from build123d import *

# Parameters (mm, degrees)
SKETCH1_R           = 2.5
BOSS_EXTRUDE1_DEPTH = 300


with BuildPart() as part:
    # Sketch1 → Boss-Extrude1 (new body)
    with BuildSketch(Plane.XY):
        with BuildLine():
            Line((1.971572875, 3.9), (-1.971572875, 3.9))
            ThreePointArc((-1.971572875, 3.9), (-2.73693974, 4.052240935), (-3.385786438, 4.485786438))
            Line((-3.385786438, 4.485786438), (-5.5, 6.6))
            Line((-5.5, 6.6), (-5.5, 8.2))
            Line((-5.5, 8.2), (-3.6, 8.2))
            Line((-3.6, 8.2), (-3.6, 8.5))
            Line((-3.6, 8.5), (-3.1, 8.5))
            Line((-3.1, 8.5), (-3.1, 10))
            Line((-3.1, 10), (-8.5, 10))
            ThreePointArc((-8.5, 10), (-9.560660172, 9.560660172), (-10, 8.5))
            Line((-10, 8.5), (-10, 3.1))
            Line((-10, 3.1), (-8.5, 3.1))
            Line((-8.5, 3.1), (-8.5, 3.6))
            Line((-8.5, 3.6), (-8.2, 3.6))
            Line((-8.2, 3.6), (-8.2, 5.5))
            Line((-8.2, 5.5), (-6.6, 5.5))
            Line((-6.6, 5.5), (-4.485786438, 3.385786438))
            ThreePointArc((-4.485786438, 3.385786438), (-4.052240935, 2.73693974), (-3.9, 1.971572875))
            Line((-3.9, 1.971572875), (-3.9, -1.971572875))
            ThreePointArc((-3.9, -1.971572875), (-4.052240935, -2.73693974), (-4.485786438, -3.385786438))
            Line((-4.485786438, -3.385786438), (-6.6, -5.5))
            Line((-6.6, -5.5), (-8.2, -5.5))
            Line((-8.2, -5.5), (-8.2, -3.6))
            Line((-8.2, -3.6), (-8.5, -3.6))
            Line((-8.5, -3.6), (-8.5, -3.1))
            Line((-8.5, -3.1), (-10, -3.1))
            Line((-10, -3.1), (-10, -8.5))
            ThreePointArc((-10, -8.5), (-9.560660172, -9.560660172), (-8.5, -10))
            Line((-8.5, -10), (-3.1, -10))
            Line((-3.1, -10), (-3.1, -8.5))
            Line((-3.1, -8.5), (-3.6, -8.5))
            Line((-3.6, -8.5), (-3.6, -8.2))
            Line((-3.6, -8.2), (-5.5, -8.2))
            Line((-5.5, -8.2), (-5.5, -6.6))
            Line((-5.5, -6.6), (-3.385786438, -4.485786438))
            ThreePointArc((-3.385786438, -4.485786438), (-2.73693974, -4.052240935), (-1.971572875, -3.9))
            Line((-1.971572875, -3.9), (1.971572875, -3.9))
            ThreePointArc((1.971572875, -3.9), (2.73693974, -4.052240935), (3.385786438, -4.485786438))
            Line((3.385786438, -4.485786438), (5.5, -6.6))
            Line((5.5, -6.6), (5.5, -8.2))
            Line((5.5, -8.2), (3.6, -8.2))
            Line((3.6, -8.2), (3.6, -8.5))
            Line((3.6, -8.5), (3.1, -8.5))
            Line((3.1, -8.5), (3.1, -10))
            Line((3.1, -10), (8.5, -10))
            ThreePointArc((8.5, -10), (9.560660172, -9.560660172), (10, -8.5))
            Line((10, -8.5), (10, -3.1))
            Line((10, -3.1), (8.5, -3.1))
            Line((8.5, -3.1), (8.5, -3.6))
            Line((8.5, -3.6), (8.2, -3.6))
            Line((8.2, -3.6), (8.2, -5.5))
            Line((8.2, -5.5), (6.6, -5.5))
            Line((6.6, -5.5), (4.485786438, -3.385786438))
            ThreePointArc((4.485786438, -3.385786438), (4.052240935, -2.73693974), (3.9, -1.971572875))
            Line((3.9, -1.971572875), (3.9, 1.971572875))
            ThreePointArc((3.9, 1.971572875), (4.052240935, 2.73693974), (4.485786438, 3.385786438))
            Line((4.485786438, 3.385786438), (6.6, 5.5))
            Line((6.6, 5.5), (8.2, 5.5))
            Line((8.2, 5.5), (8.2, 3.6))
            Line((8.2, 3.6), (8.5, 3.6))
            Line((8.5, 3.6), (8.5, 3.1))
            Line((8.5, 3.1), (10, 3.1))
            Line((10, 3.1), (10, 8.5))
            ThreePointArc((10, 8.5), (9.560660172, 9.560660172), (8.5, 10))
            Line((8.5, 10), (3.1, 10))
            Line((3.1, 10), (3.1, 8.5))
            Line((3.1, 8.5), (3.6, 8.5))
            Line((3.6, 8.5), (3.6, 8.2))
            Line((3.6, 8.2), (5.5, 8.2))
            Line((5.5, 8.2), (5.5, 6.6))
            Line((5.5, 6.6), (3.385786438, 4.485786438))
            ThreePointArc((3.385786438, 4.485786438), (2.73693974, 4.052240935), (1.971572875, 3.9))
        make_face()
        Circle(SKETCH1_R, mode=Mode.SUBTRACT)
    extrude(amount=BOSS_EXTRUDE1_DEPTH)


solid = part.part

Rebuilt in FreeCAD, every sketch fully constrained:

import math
import FreeCAD as App
import Part
import Sketcher
from FreeCAD import Vector
Q = App.Units.Quantity

doc = App.newDocument("Part")
body = doc.addObject("PartDesign::Body", "Body")

sketch1 = doc.addObject("Sketcher::SketchObject", "Sketch")
body.addObject(sketch1)
sketch1.AttachmentSupport = (doc.XY_Plane, [""])
sketch1.MapMode = "FlatFace"
sketch1.addGeometry(Part.LineSegment(Vector(1.97, 3.9, 0), Vector(-1.97, 3.9, 0)), False)
sketch1.addGeometry(Part.ArcOfCircle(Part.Circle(Vector(-1.97, 5.9, 0), Vector(0, 0, 1), 2), math.radians(-135), math.radians(-90)), False)
sketch1.addGeometry(Part.LineSegment(Vector(-3.39, 4.49, 0), Vector(-5.5, 6.6, 0)), False)
sketch1.addGeometry(Part.LineSegment(Vector(-5.5, 6.6, 0), Vector(-5.5, 8.2, 0)), False)
sketch1.addGeometry(Part.LineSegment(Vector(-5.5, 8.2, 0), Vector(-3.6, 8.2, 0)), False)
sketch1.addGeometry(Part.LineSegment(Vector(-3.6, 8.2, 0), Vector(-3.6, 8.5, 0)), False)
sketch1.addGeometry(Part.LineSegment(Vector(-3.6, 8.5, 0), Vector(-3.1, 8.5, 0)), False)
sketch1.addGeometry(Part.LineSegment(Vector(-3.1, 8.5, 0), Vector(-3.1, 10, 0)), False)
sketch1.addGeometry(Part.LineSegment(Vector(-3.1, 10, 0), Vector(-8.5, 10, 0)), False)
sketch1.addGeometry(Part.ArcOfCircle(Part.Circle(Vector(-8.5, 8.5, 0), Vector(0, 0, 1), 1.5), math.radians(90), math.radians(180)), False)
sketch1.addGeometry(Part.LineSegment(Vector(-10, 8.5, 0), Vector(-10, 3.1, 0)), False)
sketch1.addGeometry(Part.LineSegment(Vector(-10, 3.1, 0), Vector(-8.5, 3.1, 0)), False)
sketch1.addGeometry(Part.LineSegment(Vector(-8.5, 3.1, 0), Vector(-8.5, 3.6, 0)), False)
sketch1.addGeometry(Part.LineSegment(Vector(-8.5, 3.6, 0), Vector(-8.2, 3.6, 0)), False)
sketch1.addGeometry(Part.LineSegment(Vector(-8.2, 3.6, 0), Vector(-8.2, 5.5, 0)), False)
sketch1.addGeometry(Part.LineSegment(Vector(-8.2, 5.5, 0), Vector(-6.6, 5.5, 0)), False)
sketch1.addGeometry(Part.LineSegment(Vector(-6.6, 5.5, 0), Vector(-4.49, 3.39, 0)), False)
sketch1.addGeometry(Part.ArcOfCircle(Part.Circle(Vector(-5.9, 1.97, 0), Vector(0, 0, 1), 2), math.radians(0), math.radians(45)), False)
sketch1.addGeometry(Part.LineSegment(Vector(-3.9, 1.97, 0), Vector(-3.9, -1.97, 0)), False)
sketch1.addGeometry(Part.ArcOfCircle(Part.Circle(Vector(-5.9, -1.97, 0), Vector(0, 0, 1), 2), math.radians(-45), math.radians(0)), False)
sketch1.addGeometry(Part.LineSegment(Vector(-4.49, -3.39, 0), Vector(-6.6, -5.5, 0)), False)
sketch1.addGeometry(Part.LineSegment(Vector(-6.6, -5.5, 0), Vector(-8.2, -5.5, 0)), False)
sketch1.addGeometry(Part.LineSegment(Vector(-8.2, -5.5, 0), Vector(-8.2, -3.6, 0)), False)
sketch1.addGeometry(Part.LineSegment(Vector(-8.2, -3.6, 0), Vector(-8.5, -3.6, 0)), False)
sketch1.addGeometry(Part.LineSegment(Vector(-8.5, -3.6, 0), Vector(-8.5, -3.1, 0)), False)
sketch1.addGeometry(Part.LineSegment(Vector(-8.5, -3.1, 0), Vector(-10, -3.1, 0)), False)
sketch1.addGeometry(Part.LineSegment(Vector(-10, -3.1, 0), Vector(-10, -8.5, 0)), False)
sketch1.addGeometry(Part.ArcOfCircle(Part.Circle(Vector(-8.5, -8.5, 0), Vector(0, 0, 1), 1.5), math.radians(180), math.radians(270)), False)
sketch1.addGeometry(Part.LineSegment(Vector(-8.5, -10, 0), Vector(-3.1, -10, 0)), False)
sketch1.addGeometry(Part.LineSegment(Vector(-3.1, -10, 0), Vector(-3.1, -8.5, 0)), False)
sketch1.addGeometry(Part.LineSegment(Vector(-3.1, -8.5, 0), Vector(-3.6, -8.5, 0)), False)
sketch1.addGeometry(Part.LineSegment(Vector(-3.6, -8.5, 0), Vector(-3.6, -8.2, 0)), False)
sketch1.addGeometry(Part.LineSegment(Vector(-3.6, -8.2, 0), Vector(-5.5, -8.2, 0)), False)
sketch1.addGeometry(Part.LineSegment(Vector(-5.5, -8.2, 0), Vector(-5.5, -6.6, 0)), False)
sketch1.addGeometry(Part.LineSegment(Vector(-5.5, -6.6, 0), Vector(-3.39, -4.49, 0)), False)
sketch1.addGeometry(Part.ArcOfCircle(Part.Circle(Vector(-1.97, -5.9, 0), Vector(0, 0, 1), 2), math.radians(90), math.radians(135)), False)
sketch1.addGeometry(Part.LineSegment(Vector(-1.97, -3.9, 0), Vector(1.97, -3.9, 0)), False)
sketch1.addGeometry(Part.ArcOfCircle(Part.Circle(Vector(1.97, -5.9, 0), Vector(0, 0, 1), 2), math.radians(45), math.radians(90)), False)
sketch1.addGeometry(Part.LineSegment(Vector(3.39, -4.49, 0), Vector(5.5, -6.6, 0)), False)
sketch1.addGeometry(Part.LineSegment(Vector(5.5, -6.6, 0), Vector(5.5, -8.2, 0)), False)
sketch1.addGeometry(Part.LineSegment(Vector(5.5, -8.2, 0), Vector(3.6, -8.2, 0)), False)
sketch1.addGeometry(Part.LineSegment(Vector(3.6, -8.2, 0), Vector(3.6, -8.5, 0)), False)
sketch1.addGeometry(Part.LineSegment(Vector(3.6, -8.5, 0), Vector(3.1, -8.5, 0)), False)
sketch1.addGeometry(Part.LineSegment(Vector(3.1, -8.5, 0), Vector(3.1, -10, 0)), False)
sketch1.addGeometry(Part.LineSegment(Vector(3.1, -10, 0), Vector(8.5, -10, 0)), False)
sketch1.addGeometry(Part.ArcOfCircle(Part.Circle(Vector(8.5, -8.5, 0), Vector(0, 0, 1), 1.5), math.radians(-90), math.radians(0)), False)
sketch1.addGeometry(Part.LineSegment(Vector(10, -8.5, 0), Vector(10, -3.1, 0)), False)
sketch1.addGeometry(Part.LineSegment(Vector(10, -3.1, 0), Vector(8.5, -3.1, 0)), False)
sketch1.addGeometry(Part.LineSegment(Vector(8.5, -3.1, 0), Vector(8.5, -3.6, 0)), False)
sketch1.addGeometry(Part.LineSegment(Vector(8.5, -3.6, 0), Vector(8.2, -3.6, 0)), False)
sketch1.addGeometry(Part.LineSegment(Vector(8.2, -3.6, 0), Vector(8.2, -5.5, 0)), False)
sketch1.addGeometry(Part.LineSegment(Vector(8.2, -5.5, 0), Vector(6.6, -5.5, 0)), False)
sketch1.addGeometry(Part.LineSegment(Vector(6.6, -5.5, 0), Vector(4.49, -3.39, 0)), False)
sketch1.addGeometry(Part.ArcOfCircle(Part.Circle(Vector(5.9, -1.97, 0), Vector(0, 0, 1), 2), math.radians(180), math.radians(225)), False)
sketch1.addGeometry(Part.LineSegment(Vector(3.9, -1.97, 0), Vector(3.9, 1.97, 0)), False)
sketch1.addGeometry(Part.ArcOfCircle(Part.Circle(Vector(5.9, 1.97, 0), Vector(0, 0, 1), 2), math.radians(135), math.radians(180)), False)
sketch1.addGeometry(Part.LineSegment(Vector(4.49, 3.39, 0), Vector(6.6, 5.5, 0)), False)
sketch1.addGeometry(Part.LineSegment(Vector(6.6, 5.5, 0), Vector(8.2, 5.5, 0)), False)
sketch1.addGeometry(Part.LineSegment(Vector(8.2, 5.5, 0), Vector(8.2, 3.6, 0)), False)
sketch1.addGeometry(Part.LineSegment(Vector(8.2, 3.6, 0), Vector(8.5, 3.6, 0)), False)
sketch1.addGeometry(Part.LineSegment(Vector(8.5, 3.6, 0), Vector(8.5, 3.1, 0)), False)
sketch1.addGeometry(Part.LineSegment(Vector(8.5, 3.1, 0), Vector(10, 3.1, 0)), False)
sketch1.addGeometry(Part.LineSegment(Vector(10, 3.1, 0), Vector(10, 8.5, 0)), False)
sketch1.addGeometry(Part.ArcOfCircle(Part.Circle(Vector(8.5, 8.5, 0), Vector(0, 0, 1), 1.5), math.radians(0), math.radians(90)), False)
sketch1.addGeometry(Part.LineSegment(Vector(8.5, 10, 0), Vector(3.1, 10, 0)), False)
sketch1.addGeometry(Part.LineSegment(Vector(3.1, 10, 0), Vector(3.1, 8.5, 0)), False)
sketch1.addGeometry(Part.LineSegment(Vector(3.1, 8.5, 0), Vector(3.6, 8.5, 0)), False)
sketch1.addGeometry(Part.LineSegment(Vector(3.6, 8.5, 0), Vector(3.6, 8.2, 0)), False)
sketch1.addGeometry(Part.LineSegment(Vector(3.6, 8.2, 0), Vector(5.5, 8.2, 0)), False)
sketch1.addGeometry(Part.LineSegment(Vector(5.5, 8.2, 0), Vector(5.5, 6.6, 0)), False)
sketch1.addGeometry(Part.LineSegment(Vector(5.5, 6.6, 0), Vector(3.39, 4.49, 0)), False)
sketch1.addGeometry(Part.ArcOfCircle(Part.Circle(Vector(1.97, 5.9, 0), Vector(0, 0, 1), 2), math.radians(-90), math.radians(-45)), False)
sketch1.addGeometry(Part.Circle(Vector(0, 0, 0), Vector(0, 0, 1), 2.5), False)
sketch1.addConstraint(Sketcher.Constraint("Tangent", 0, 2, 1, 2))
sketch1.addConstraint(Sketcher.Constraint("Tangent", 1, 1, 2, 1))
sketch1.addConstraint(Sketcher.Constraint("Coincident", 2, 2, 3, 1))
sketch1.addConstraint(Sketcher.Constraint("Coincident", 3, 2, 4, 1))
sketch1.addConstraint(Sketcher.Constraint("Coincident", 4, 2, 5, 1))
sketch1.addConstraint(Sketcher.Constraint("Coincident", 5, 2, 6, 1))
sketch1.addConstraint(Sketcher.Constraint("Coincident", 6, 2, 7, 1))
sketch1.addConstraint(Sketcher.Constraint("Coincident", 7, 2, 8, 1))
sketch1.addConstraint(Sketcher.Constraint("Tangent", 8, 2, 9, 1))
sketch1.addConstraint(Sketcher.Constraint("Tangent", 9, 2, 10, 1))
sketch1.addConstraint(Sketcher.Constraint("Coincident", 10, 2, 11, 1))
sketch1.addConstraint(Sketcher.Constraint("Coincident", 11, 2, 12, 1))
sketch1.addConstraint(Sketcher.Constraint("Coincident", 12, 2, 13, 1))
sketch1.addConstraint(Sketcher.Constraint("Coincident", 13, 2, 14, 1))
sketch1.addConstraint(Sketcher.Constraint("Coincident", 14, 2, 15, 1))
sketch1.addConstraint(Sketcher.Constraint("Coincident", 15, 2, 16, 1))
sketch1.addConstraint(Sketcher.Constraint("Tangent", 16, 2, 17, 2))
sketch1.addConstraint(Sketcher.Constraint("Tangent", 17, 1, 18, 1))
sketch1.addConstraint(Sketcher.Constraint("Tangent", 18, 2, 19, 2))
sketch1.addConstraint(Sketcher.Constraint("Tangent", 19, 1, 20, 1))
sketch1.addConstraint(Sketcher.Constraint("Coincident", 20, 2, 21, 1))
sketch1.addConstraint(Sketcher.Constraint("Coincident", 21, 2, 22, 1))
sketch1.addConstraint(Sketcher.Constraint("Coincident", 22, 2, 23, 1))
sketch1.addConstraint(Sketcher.Constraint("Coincident", 23, 2, 24, 1))
sketch1.addConstraint(Sketcher.Constraint("Coincident", 24, 2, 25, 1))
sketch1.addConstraint(Sketcher.Constraint("Coincident", 25, 2, 26, 1))
sketch1.addConstraint(Sketcher.Constraint("Tangent", 26, 2, 27, 1))
sketch1.addConstraint(Sketcher.Constraint("Tangent", 27, 2, 28, 1))
sketch1.addConstraint(Sketcher.Constraint("Coincident", 28, 2, 29, 1))
sketch1.addConstraint(Sketcher.Constraint("Coincident", 29, 2, 30, 1))
sketch1.addConstraint(Sketcher.Constraint("Coincident", 30, 2, 31, 1))
sketch1.addConstraint(Sketcher.Constraint("Coincident", 31, 2, 32, 1))
sketch1.addConstraint(Sketcher.Constraint("Coincident", 32, 2, 33, 1))
sketch1.addConstraint(Sketcher.Constraint("Coincident", 33, 2, 34, 1))
sketch1.addConstraint(Sketcher.Constraint("Tangent", 34, 2, 35, 2))
sketch1.addConstraint(Sketcher.Constraint("Tangent", 35, 1, 36, 1))
sketch1.addConstraint(Sketcher.Constraint("Tangent", 36, 2, 37, 2))
sketch1.addConstraint(Sketcher.Constraint("Tangent", 37, 1, 38, 1))
sketch1.addConstraint(Sketcher.Constraint("Coincident", 38, 2, 39, 1))
sketch1.addConstraint(Sketcher.Constraint("Coincident", 39, 2, 40, 1))
sketch1.addConstraint(Sketcher.Constraint("Coincident", 40, 2, 41, 1))
sketch1.addConstraint(Sketcher.Constraint("Coincident", 41, 2, 42, 1))
sketch1.addConstraint(Sketcher.Constraint("Coincident", 42, 2, 43, 1))
sketch1.addConstraint(Sketcher.Constraint("Coincident", 43, 2, 44, 1))
sketch1.addConstraint(Sketcher.Constraint("Tangent", 44, 2, 45, 1))
sketch1.addConstraint(Sketcher.Constraint("Tangent", 45, 2, 46, 1))
sketch1.addConstraint(Sketcher.Constraint("Coincident", 46, 2, 47, 1))
sketch1.addConstraint(Sketcher.Constraint("Coincident", 47, 2, 48, 1))
sketch1.addConstraint(Sketcher.Constraint("Coincident", 48, 2, 49, 1))
sketch1.addConstraint(Sketcher.Constraint("Coincident", 49, 2, 50, 1))
sketch1.addConstraint(Sketcher.Constraint("Coincident", 50, 2, 51, 1))
sketch1.addConstraint(Sketcher.Constraint("Coincident", 51, 2, 52, 1))
sketch1.addConstraint(Sketcher.Constraint("Tangent", 52, 2, 53, 2))
sketch1.addConstraint(Sketcher.Constraint("Tangent", 53, 1, 54, 1))
sketch1.addConstraint(Sketcher.Constraint("Tangent", 54, 2, 55, 2))
sketch1.addConstraint(Sketcher.Constraint("Tangent", 55, 1, 56, 1))
sketch1.addConstraint(Sketcher.Constraint("Coincident", 56, 2, 57, 1))
sketch1.addConstraint(Sketcher.Constraint("Coincident", 57, 2, 58, 1))
sketch1.addConstraint(Sketcher.Constraint("Coincident", 58, 2, 59, 1))
sketch1.addConstraint(Sketcher.Constraint("Coincident", 59, 2, 60, 1))
sketch1.addConstraint(Sketcher.Constraint("Coincident", 60, 2, 61, 1))
sketch1.addConstraint(Sketcher.Constraint("Coincident", 61, 2, 62, 1))
sketch1.addConstraint(Sketcher.Constraint("Tangent", 62, 2, 63, 1))
sketch1.addConstraint(Sketcher.Constraint("Tangent", 63, 2, 64, 1))
sketch1.addConstraint(Sketcher.Constraint("Coincident", 64, 2, 65, 1))
sketch1.addConstraint(Sketcher.Constraint("Coincident", 65, 2, 66, 1))
sketch1.addConstraint(Sketcher.Constraint("Coincident", 66, 2, 67, 1))
sketch1.addConstraint(Sketcher.Constraint("Coincident", 67, 2, 68, 1))
sketch1.addConstraint(Sketcher.Constraint("Coincident", 68, 2, 69, 1))
sketch1.addConstraint(Sketcher.Constraint("Coincident", 69, 2, 70, 1))
sketch1.addConstraint(Sketcher.Constraint("Tangent", 70, 2, 71, 2))
sketch1.addConstraint(Sketcher.Constraint("Tangent", 71, 1, 0, 1))
sketch1.addConstraint(Sketcher.Constraint("Horizontal", 0))
sketch1.addConstraint(Sketcher.Constraint("Vertical", 3))
sketch1.addConstraint(Sketcher.Constraint("Horizontal", 4))
sketch1.addConstraint(Sketcher.Constraint("Vertical", 5))
sketch1.addConstraint(Sketcher.Constraint("Horizontal", 6))
sketch1.addConstraint(Sketcher.Constraint("Vertical", 7))
sketch1.addConstraint(Sketcher.Constraint("Horizontal", 8))
sketch1.addConstraint(Sketcher.Constraint("Vertical", 10))
sketch1.addConstraint(Sketcher.Constraint("Horizontal", 11))
sketch1.addConstraint(Sketcher.Constraint("Vertical", 12))
sketch1.addConstraint(Sketcher.Constraint("Horizontal", 13))
sketch1.addConstraint(Sketcher.Constraint("Vertical", 14))
sketch1.addConstraint(Sketcher.Constraint("Horizontal", 15))
sketch1.addConstraint(Sketcher.Constraint("Vertical", 18))
sketch1.addConstraint(Sketcher.Constraint("Horizontal", 21))
sketch1.addConstraint(Sketcher.Constraint("Vertical", 22))
sketch1.addConstraint(Sketcher.Constraint("Horizontal", 23))
sketch1.addConstraint(Sketcher.Constraint("Vertical", 24))
sketch1.addConstraint(Sketcher.Constraint("Horizontal", 25))
sketch1.addConstraint(Sketcher.Constraint("Vertical", 26))
sketch1.addConstraint(Sketcher.Constraint("Horizontal", 28))
sketch1.addConstraint(Sketcher.Constraint("Vertical", 29))
sketch1.addConstraint(Sketcher.Constraint("Horizontal", 30))
sketch1.addConstraint(Sketcher.Constraint("Vertical", 31))
sketch1.addConstraint(Sketcher.Constraint("Horizontal", 32))
sketch1.addConstraint(Sketcher.Constraint("Vertical", 33))
sketch1.addConstraint(Sketcher.Constraint("Horizontal", 36))
sketch1.addConstraint(Sketcher.Constraint("Vertical", 39))
sketch1.addConstraint(Sketcher.Constraint("Horizontal", 40))
sketch1.addConstraint(Sketcher.Constraint("Vertical", 41))
sketch1.addConstraint(Sketcher.Constraint("Horizontal", 42))
sketch1.addConstraint(Sketcher.Constraint("Vertical", 43))
sketch1.addConstraint(Sketcher.Constraint("Horizontal", 44))
sketch1.addConstraint(Sketcher.Constraint("Vertical", 46))
sketch1.addConstraint(Sketcher.Constraint("Horizontal", 47))
sketch1.addConstraint(Sketcher.Constraint("Vertical", 48))
sketch1.addConstraint(Sketcher.Constraint("Horizontal", 49))
sketch1.addConstraint(Sketcher.Constraint("Vertical", 50))
sketch1.addConstraint(Sketcher.Constraint("Horizontal", 51))
sketch1.addConstraint(Sketcher.Constraint("Vertical", 54))
sketch1.addConstraint(Sketcher.Constraint("Horizontal", 57))
sketch1.addConstraint(Sketcher.Constraint("Vertical", 58))
sketch1.addConstraint(Sketcher.Constraint("Horizontal", 59))
sketch1.addConstraint(Sketcher.Constraint("Vertical", 60))
sketch1.addConstraint(Sketcher.Constraint("Horizontal", 61))
sketch1.addConstraint(Sketcher.Constraint("Vertical", 62))
sketch1.addConstraint(Sketcher.Constraint("Horizontal", 64))
sketch1.addConstraint(Sketcher.Constraint("Vertical", 65))
sketch1.addConstraint(Sketcher.Constraint("Horizontal", 66))
sketch1.addConstraint(Sketcher.Constraint("Vertical", 67))
sketch1.addConstraint(Sketcher.Constraint("Horizontal", 68))
sketch1.addConstraint(Sketcher.Constraint("Vertical", 69))
sketch1.addConstraint(Sketcher.Constraint("Coincident", 72, 3, -1, 1))
sketch1.addConstraint(Sketcher.Constraint("Equal", 1, 17))
sketch1.addConstraint(Sketcher.Constraint("Equal", 17, 19))
sketch1.addConstraint(Sketcher.Constraint("Equal", 9, 27))
sketch1.addConstraint(Sketcher.Constraint("Equal", 19, 35))
sketch1.addConstraint(Sketcher.Constraint("Equal", 35, 37))
sketch1.addConstraint(Sketcher.Constraint("Equal", 27, 45))
sketch1.addConstraint(Sketcher.Constraint("Equal", 37, 53))
sketch1.addConstraint(Sketcher.Constraint("Equal", 53, 55))
sketch1.addConstraint(Sketcher.Constraint("Equal", 45, 63))
sketch1.addConstraint(Sketcher.Constraint("Equal", 55, 71))
sketch1.addConstraint(Sketcher.Constraint("Symmetric", 1, 3, 37, 3, -1, 1))
sketch1.addConstraint(Sketcher.Constraint("Symmetric", 9, 3, 45, 3, -1, 1))
sketch1.addConstraint(Sketcher.Constraint("Symmetric", 17, 3, 53, 3, -1, 1))
sketch1.addConstraint(Sketcher.Constraint("Symmetric", 27, 3, 63, 3, -1, 1))
sketch1.addConstraint(Sketcher.Constraint("Symmetric", 2, 2, 38, 2, -1, 1))
sketch1.addConstraint(Sketcher.Constraint("Symmetric", 4, 2, 40, 2, -1, 1))
sketch1.addConstraint(Sketcher.Constraint("Symmetric", 6, 2, 42, 2, -1, 1))
sketch1.addConstraint(Sketcher.Constraint("Symmetric", 11, 2, 47, 2, -1, 1))
sketch1.addConstraint(Sketcher.Constraint("Symmetric", 13, 2, 49, 2, -1, 1))
sketch1.addConstraint(Sketcher.Constraint("Symmetric", 15, 2, 51, 2, -1, 1))
sketch1.addConstraint(Sketcher.Constraint("Symmetric", 19, 1, 55, 1, -1, 1))
sketch1.addConstraint(Sketcher.Constraint("Symmetric", 21, 2, 57, 2, -1, 1))
sketch1.addConstraint(Sketcher.Constraint("Symmetric", 23, 2, 59, 2, -1, 1))
sketch1.addConstraint(Sketcher.Constraint("Symmetric", 29, 2, 65, 2, -1, 1))
sketch1.addConstraint(Sketcher.Constraint("Symmetric", 31, 2, 67, 2, -1, 1))
sketch1.addConstraint(Sketcher.Constraint("Symmetric", 33, 2, 69, 2, -1, 1))
sketch1.addConstraint(Sketcher.Constraint("Symmetric", 27, 3, 45, 3, -2))
sketch1.addConstraint(Sketcher.Constraint("Symmetric", 34, 2, 37, 1, -2))
sketch1.addConstraint(Sketcher.Constraint("Symmetric", 32, 2, 39, 2, -2))
sketch1.addConstraint(Sketcher.Constraint("Symmetric", 30, 2, 41, 2, -2))
sketch1.addConstraint(Sketcher.Constraint("Symmetric", 24, 2, 47, 2, -2))
sketch1.addConstraint(Sketcher.Constraint("Symmetric", 22, 2, 49, 2, -2))
sketch1.addConstraint(Sketcher.Constraint("Symmetric", 20, 2, 51, 2, -2))
sketch1.addConstraint(Sketcher.Constraint("Parallel", 2, 16))
sketch1.addConstraint(Sketcher.Constraint("Perpendicular", 16, 20))
sketch1.addConstraint(Sketcher.Constraint("Parallel", 20, 34))
sketch1.addConstraint(Sketcher.Constraint("Parallel", 56, 70))
sketch1.addConstraint(Sketcher.Constraint("Horizontal", 63, 3, 5, 2))
sketch1.addConstraint(Sketcher.Constraint("Horizontal", 11, 2, 60, 2))
sketch1.addConstraint(Sketcher.Constraint("Vertical", 8, 2, 11, 2))
sketch1.addConstraint(Sketcher.Constraint("Vertical", 7, 2, 28, 2))
sketch1.addConstraint(Sketcher.Constraint("Equal", 57, 3))
sketch1.addConstraint(Sketcher.Constraint("Equal", 59, 5))
sketch1.addConstraint(Sketcher.Constraint("Equal", 64, 10))
sketch1.addConstraint(Sketcher.Constraint("Equal", 66, 12))
sketch1.addConstraint(Sketcher.Constraint("Equal", 68, 14))
sketch1.addConstraint(Sketcher.Constraint("Equal", 36, 18))
sketch1.addConstraint(Sketcher.Constraint("Equal", 2, 16))
sketch1.addConstraint(Sketcher.Constraint("Diameter", 72, Q("5 mm")))
sketch1.addConstraint(Sketcher.Constraint("Radius", 1, Q("2 mm")))
sketch1.addConstraint(Sketcher.Constraint("Radius", 9, Q("1.5 mm")))
sketch1.addConstraint(Sketcher.Constraint("DistanceX", 4, 1, 4, 2, Q("1.9 mm")))
sketch1.addConstraint(Sketcher.Constraint("DistanceX", 6, 1, 6, 2, Q("0.5 mm")))
sketch1.addConstraint(Sketcher.Constraint("DistanceX", 8, 2, 8, 1, Q("5.4 mm")))
sketch1.addConstraint(Sketcher.Constraint("DistanceX", 13, 1, 13, 2, Q("0.3 mm")))
sketch1.addConstraint(Sketcher.Constraint("DistanceX", 15, 1, 15, 2, Q("1.6 mm")))
sketch1.addConstraint(Sketcher.Constraint("DistanceY", -1, 1, 7, 2, Q("10 mm")))
sketch1.addConstraint(Sketcher.Constraint("DistanceY", -1, 1, 1, 3, Q("5.9 mm")))
pad1 = doc.addObject("PartDesign::Pad", "Pad")
body.addObject(pad1)
pad1.Profile = sketch1
pad1.Length = 300

doc.recompute()
